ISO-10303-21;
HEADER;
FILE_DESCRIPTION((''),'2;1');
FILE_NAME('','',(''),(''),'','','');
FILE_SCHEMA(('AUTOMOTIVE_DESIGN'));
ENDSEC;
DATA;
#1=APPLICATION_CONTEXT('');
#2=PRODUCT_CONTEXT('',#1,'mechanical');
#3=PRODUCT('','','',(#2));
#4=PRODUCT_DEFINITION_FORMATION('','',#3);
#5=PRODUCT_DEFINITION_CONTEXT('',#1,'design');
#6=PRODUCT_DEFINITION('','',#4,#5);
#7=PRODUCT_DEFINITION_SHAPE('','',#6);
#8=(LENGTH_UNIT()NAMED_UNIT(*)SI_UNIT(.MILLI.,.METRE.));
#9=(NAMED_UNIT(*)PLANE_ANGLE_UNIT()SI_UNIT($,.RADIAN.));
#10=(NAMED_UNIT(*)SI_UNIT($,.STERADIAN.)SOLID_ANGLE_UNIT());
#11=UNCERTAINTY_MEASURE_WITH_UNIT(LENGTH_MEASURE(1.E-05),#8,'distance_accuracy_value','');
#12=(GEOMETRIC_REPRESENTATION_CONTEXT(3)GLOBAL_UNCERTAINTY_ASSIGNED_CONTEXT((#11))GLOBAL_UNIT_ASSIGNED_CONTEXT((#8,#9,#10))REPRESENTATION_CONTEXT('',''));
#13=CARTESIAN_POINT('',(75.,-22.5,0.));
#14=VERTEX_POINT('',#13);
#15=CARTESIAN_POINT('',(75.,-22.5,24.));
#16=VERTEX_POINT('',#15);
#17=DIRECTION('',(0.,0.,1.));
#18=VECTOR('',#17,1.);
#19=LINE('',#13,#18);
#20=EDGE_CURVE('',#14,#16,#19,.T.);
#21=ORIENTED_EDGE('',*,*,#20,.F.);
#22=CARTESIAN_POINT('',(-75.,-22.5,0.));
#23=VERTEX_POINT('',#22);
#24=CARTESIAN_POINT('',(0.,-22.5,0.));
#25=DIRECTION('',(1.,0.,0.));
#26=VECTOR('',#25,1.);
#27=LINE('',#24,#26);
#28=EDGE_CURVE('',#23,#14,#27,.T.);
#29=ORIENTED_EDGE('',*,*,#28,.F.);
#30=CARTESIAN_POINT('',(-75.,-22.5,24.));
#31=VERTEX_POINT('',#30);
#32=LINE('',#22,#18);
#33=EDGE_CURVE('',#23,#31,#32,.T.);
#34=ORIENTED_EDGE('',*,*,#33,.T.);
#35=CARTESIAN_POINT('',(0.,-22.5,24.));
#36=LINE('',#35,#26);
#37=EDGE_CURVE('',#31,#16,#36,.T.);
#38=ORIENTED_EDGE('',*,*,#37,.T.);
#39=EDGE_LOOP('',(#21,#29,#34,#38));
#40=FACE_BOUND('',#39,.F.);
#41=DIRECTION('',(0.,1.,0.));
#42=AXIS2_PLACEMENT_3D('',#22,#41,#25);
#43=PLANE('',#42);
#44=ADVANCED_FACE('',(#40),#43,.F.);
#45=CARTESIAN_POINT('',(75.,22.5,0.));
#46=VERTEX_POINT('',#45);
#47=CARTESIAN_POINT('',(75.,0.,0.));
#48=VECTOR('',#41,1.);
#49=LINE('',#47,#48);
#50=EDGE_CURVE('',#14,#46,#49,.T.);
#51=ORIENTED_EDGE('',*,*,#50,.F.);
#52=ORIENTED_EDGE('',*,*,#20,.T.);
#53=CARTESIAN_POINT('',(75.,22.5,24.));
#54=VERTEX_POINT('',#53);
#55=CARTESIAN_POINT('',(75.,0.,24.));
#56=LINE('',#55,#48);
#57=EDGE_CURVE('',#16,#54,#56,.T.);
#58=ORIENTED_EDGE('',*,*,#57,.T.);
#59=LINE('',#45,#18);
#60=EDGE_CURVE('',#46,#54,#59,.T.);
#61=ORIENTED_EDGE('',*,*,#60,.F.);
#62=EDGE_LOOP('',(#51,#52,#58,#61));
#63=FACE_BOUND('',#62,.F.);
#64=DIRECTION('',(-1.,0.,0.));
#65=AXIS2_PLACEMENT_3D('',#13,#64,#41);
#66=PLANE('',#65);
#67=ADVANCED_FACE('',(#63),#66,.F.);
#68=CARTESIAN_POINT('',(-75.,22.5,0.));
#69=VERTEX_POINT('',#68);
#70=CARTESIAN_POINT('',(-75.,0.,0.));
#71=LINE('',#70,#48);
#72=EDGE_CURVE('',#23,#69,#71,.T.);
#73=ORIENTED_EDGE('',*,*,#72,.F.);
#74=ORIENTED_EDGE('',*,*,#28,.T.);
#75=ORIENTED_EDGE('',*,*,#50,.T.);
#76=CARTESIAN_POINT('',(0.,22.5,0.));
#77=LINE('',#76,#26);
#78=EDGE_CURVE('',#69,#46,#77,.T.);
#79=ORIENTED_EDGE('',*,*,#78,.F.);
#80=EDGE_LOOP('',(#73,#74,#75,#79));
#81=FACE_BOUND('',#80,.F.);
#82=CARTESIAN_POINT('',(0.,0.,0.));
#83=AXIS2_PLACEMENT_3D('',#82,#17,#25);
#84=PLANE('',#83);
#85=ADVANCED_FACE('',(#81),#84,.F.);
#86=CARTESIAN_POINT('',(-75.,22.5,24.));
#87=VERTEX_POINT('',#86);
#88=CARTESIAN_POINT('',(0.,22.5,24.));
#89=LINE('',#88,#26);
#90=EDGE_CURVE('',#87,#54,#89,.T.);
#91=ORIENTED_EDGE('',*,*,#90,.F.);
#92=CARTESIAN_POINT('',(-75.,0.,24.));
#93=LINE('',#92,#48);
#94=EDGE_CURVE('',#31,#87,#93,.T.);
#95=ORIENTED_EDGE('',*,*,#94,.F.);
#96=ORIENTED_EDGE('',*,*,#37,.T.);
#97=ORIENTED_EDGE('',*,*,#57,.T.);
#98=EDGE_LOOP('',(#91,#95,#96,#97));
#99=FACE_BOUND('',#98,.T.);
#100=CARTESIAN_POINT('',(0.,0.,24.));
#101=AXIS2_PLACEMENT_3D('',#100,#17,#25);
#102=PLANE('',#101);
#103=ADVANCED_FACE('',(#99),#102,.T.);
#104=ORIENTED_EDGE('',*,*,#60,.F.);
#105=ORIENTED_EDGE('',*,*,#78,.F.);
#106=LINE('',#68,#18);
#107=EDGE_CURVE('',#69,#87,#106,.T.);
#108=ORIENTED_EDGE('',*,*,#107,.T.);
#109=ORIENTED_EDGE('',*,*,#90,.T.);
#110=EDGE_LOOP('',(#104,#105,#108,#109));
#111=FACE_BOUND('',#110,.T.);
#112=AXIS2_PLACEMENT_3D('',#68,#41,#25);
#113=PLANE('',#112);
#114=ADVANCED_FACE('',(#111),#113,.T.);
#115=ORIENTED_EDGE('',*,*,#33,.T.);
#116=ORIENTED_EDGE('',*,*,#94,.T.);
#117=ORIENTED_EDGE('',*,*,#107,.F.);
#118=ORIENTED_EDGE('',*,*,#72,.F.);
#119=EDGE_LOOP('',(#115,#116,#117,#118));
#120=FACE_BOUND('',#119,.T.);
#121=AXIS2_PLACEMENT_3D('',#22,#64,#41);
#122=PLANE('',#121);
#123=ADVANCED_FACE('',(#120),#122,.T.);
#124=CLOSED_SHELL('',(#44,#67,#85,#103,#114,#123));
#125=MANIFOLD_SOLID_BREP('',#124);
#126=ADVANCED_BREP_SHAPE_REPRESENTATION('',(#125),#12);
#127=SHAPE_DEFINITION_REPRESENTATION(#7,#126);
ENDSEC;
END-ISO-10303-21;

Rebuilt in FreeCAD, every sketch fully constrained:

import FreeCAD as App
import Part
import Sketcher

V = App.Vector

doc = App.newDocument("Part")
params = doc.addObject("Spreadsheet::Sheet", "Params")
for row, (alias, value) in enumerate([
    ("sketch1_width", "150 mm"),
    ("sketch1_height", "45 mm"),
    ("pad1_length", "24 mm"),
], start=1):
    params.set(f"A{row}", alias)
    params.set(f"B{row}", "=" + value)
    params.setAlias(f"B{row}", alias)

body = doc.addObject("PartDesign::Body", "Body")

# Sketch on XY plane
sketch1 = body.newObject("Sketcher::SketchObject", "Sketch")
sketch1.AttachmentSupport = (doc.getObject("XY_Plane"), [""])
sketch1.MapMode = "FlatFace"
sketch1.addGeometry(Part.LineSegment(V(-75, 22, 0), V(-75, -22, 0)), False)
sketch1.addGeometry(Part.LineSegment(V(-75, -22, 0), V(75, -22, 0)), False)
sketch1.addGeometry(Part.LineSegment(V(75, -22, 0), V(75, 22, 0)), False)
sketch1.addGeometry(Part.LineSegment(V(75, 22, 0), V(-75, 22, 0)), False)
sketch1.addConstraint(Sketcher.Constraint("Coincident", 0, 2, 1, 1))
sketch1.addConstraint(Sketcher.Constraint("Coincident", 1, 2, 2, 1))
sketch1.addConstraint(Sketcher.Constraint("Coincident", 2, 2, 3, 1))
sketch1.addConstraint(Sketcher.Constraint("Coincident", 3, 2, 0, 1))
sketch1.addConstraint(Sketcher.Constraint("Vertical", 0))
sketch1.addConstraint(Sketcher.Constraint("Horizontal", 1))
sketch1.addConstraint(Sketcher.Constraint("Vertical", 2))
sketch1.addConstraint(Sketcher.Constraint("Horizontal", 3))
sketch1.addConstraint(Sketcher.Constraint("Symmetric", 0, 2, 2, 2, -1, 1))
sketch1.addConstraint(Sketcher.Constraint("DistanceX", 1, 1, 1, 2, 150.0))
sketch1.addConstraint(Sketcher.Constraint("DistanceY", 0, 2, 0, 1, 45.0))
sketch1.setExpression("Constraints[9]", "Params.sketch1_width")
sketch1.setExpression("Constraints[10]", "Params.sketch1_height")
pad1 = body.newObject("PartDesign::Pad", "Pad")
pad1.Profile = sketch1
pad1.setExpression("Length", "Params.pad1_length")

doc.recompute()
